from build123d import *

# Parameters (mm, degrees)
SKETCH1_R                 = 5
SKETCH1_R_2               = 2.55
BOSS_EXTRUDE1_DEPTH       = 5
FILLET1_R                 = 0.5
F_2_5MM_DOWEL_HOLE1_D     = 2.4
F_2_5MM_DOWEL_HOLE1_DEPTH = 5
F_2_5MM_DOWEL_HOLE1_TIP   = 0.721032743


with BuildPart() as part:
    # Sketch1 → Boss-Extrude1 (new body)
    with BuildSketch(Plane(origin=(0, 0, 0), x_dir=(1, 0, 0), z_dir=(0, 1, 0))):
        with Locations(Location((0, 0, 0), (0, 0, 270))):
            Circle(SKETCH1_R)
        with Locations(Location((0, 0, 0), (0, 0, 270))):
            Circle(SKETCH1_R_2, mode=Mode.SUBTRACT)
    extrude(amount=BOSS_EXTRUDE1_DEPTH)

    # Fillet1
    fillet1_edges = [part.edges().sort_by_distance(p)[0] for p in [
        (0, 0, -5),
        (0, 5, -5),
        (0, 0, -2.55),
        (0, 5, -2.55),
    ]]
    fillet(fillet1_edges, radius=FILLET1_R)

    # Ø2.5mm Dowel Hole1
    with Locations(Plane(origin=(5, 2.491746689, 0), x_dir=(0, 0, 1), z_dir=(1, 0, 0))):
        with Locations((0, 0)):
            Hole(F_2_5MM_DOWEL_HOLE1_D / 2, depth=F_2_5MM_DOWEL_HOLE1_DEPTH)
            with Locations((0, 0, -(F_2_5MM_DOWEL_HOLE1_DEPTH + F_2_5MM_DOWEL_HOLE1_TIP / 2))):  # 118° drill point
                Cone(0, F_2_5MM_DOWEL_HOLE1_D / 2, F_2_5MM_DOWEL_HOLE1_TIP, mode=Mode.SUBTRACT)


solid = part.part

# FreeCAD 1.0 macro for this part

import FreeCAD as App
import Part
import Sketcher

V = App.Vector
Q = App.Units.Quantity


def edges_at(feature, points):
    """Names of the edges that pass closest to the given points."""
    edges = feature.Shape.Edges
    near = lambda p: min(range(len(edges)), key=lambda i: edges[i].distToShape(Part.Vertex(*p))[0])
    return sorted({f"Edge{near(p) + 1}" for p in points})

doc = App.newDocument("Part")
body = doc.addObject("PartDesign::Body", "Body")

sketch1 = body.newObject("Sketcher::SketchObject", "Sketch")
sketch1.AttachmentSupport = (doc.getObject("XZ_Plane"), [""])
sketch1.MapMode = "FlatFace"
sketch1.addGeometry([
    Part.Circle(V(0, 0, 0), V(0, 0, 1), 5),
    Part.Circle(V(0, 0, 0), V(0, 0, 1), 2.5),
], False)
sketch1.addConstraint([
    Sketcher.Constraint("Coincident", 0, 3, -1, 1),
    Sketcher.Constraint("Coincident", 1, 3, -1, 1),
    Sketcher.Constraint("Diameter", 0, Q("10 mm")),
    Sketcher.Constraint("Diameter", 1, Q("5.1 mm")),
])
pad1 = body.newObject("PartDesign::Pad", "Pad")
pad1.Profile = sketch1
pad1.Length = 5
pad1.Reversed = True
doc.recompute()

fillet = body.newObject("PartDesign::Fillet", "Fillet")
fillet.Base = (pad1, edges_at(pad1, [
    (0, 0, -5),
    (0, 5, -5),
    (0, 0, -2.55),
    (0, 5, -2.55),
]))
fillet.Radius = 0.5

sketch2 = body.newObject("Sketcher::SketchObject", "Sketch001")
sketch2.AttachmentSupport = (doc.getObject("YZ_Plane"), [""])
sketch2.MapMode = "FlatFace"
sketch2.AttachmentOffset = App.Placement(V(0, 0, 5), App.Rotation())
sketch2.addGeometry(Part.Circle(V(2.5, 0, 0), V(0, 0, 1), 1.2), False)
sketch2.addConstraint([
    Sketcher.Constraint("PointOnObject", 0, 3, -1),
    Sketcher.Constraint("Diameter", 0, Q("2.4 mm")),
    Sketcher.Constraint("DistanceX", -1, 1, 0, 3, Q("2.491747 mm")),
])
doc.recompute()
hole = body.newObject("PartDesign::Hole", "Hole")
hole.Profile = sketch2
hole.ThreadType = "None"
hole.Diameter = 2.4
hole.DepthType = "Dimension"
hole.Depth = 5
hole.DrillPoint = "Angled"
hole.DrillPointAngle = 118

doc.recompute()
